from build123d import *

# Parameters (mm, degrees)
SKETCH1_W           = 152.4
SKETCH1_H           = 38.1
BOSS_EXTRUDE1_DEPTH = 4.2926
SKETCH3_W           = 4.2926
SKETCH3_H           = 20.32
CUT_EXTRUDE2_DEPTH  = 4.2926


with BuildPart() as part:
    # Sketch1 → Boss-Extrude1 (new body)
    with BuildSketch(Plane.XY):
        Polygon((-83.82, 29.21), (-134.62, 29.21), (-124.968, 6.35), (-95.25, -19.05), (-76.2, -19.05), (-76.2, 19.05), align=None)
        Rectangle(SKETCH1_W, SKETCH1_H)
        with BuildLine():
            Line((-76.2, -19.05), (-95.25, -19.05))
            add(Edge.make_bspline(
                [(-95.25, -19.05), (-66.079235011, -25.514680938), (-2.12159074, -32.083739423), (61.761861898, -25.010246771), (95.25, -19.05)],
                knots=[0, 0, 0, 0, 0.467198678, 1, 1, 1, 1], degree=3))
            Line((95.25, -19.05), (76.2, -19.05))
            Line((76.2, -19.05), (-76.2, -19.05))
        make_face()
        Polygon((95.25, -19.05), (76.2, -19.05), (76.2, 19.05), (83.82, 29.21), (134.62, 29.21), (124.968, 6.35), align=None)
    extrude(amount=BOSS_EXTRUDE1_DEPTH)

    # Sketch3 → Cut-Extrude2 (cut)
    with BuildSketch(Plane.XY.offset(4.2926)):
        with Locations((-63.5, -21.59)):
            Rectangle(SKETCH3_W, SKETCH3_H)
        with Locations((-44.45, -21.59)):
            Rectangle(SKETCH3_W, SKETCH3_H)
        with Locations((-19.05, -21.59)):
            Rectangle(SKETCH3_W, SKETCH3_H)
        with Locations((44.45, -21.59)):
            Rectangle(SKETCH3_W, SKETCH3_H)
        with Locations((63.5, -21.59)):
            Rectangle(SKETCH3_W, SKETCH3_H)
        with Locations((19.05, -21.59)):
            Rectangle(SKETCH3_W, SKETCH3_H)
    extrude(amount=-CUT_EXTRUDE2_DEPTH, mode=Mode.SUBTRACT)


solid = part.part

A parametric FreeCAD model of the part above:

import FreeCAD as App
import Part
import Sketcher
from FreeCAD import Vector
Q = App.Units.Quantity


def add_polygon(sketch, points):
    """Adds a closed chain of lines whose ends are joined by coincident constraints."""
    first, n = sketch.GeometryCount, len(points)
    for a, b in zip(points, points[1:] + points[:1]):
        sketch.addGeometry(Part.LineSegment(App.Vector(*a, 0), App.Vector(*b, 0)), False)
    for i in range(n):
        sketch.addConstraint(Sketcher.Constraint("Coincident", first + i, 2, first + (i + 1) % n, 1))

doc = App.newDocument("Part")
params = doc.addObject("Spreadsheet::Sheet", "Params")
for row, (alias, value) in enumerate([
    ("sketch1_width", "2 in"),
    ("sketch1_width2", "6 in"),
    ("sketch1_length", "0.5 in"),
    ("pad1_length", "0.169 in"),
    ("sketch2_height", "0.8 in"),
    ("sketch2_width", "0.169 in"),
    ("pocket1_length", "0.169 in"),
], start=1):
    params.set(f"A{row}", alias)
    params.set(f"B{row}", "=" + value)
    params.setAlias(f"B{row}", alias)

body = doc.addObject("PartDesign::Body", "Body")

# Sketch on XY plane
sketch1 = body.newObject("Sketcher::SketchObject", "Sketch")
sketch1.AttachmentSupport = (doc.getObject("XY_Plane"), [""])
sketch1.MapMode = "FlatFace"
sketch1.addGeometry([
    Part.LineSegment(Vector(-83.82, 29.21, 0), Vector(-134.62, 29.21, 0)),  # 0
    Part.LineSegment(Vector(-134.62, 29.21, 0), Vector(-124.968, 6.35, 0)),  # 1
    Part.LineSegment(Vector(-124.968, 6.35, 0), Vector(-95.25, -19.05, 0)),  # 2
    Part.BSplineCurve([Vector(-95.25, -19.05, 0), Vector(-66.079235, -25.514681, 0), Vector(-2.121591, -32.083739, 0), Vector(61.761862, -25.010247, 0), Vector(95.25, -19.05, 0)], [4, 1, 4], [0, 0.467198678, 1], False, 3, [1, 1, 1, 1, 1], False),  # 3
    Part.LineSegment(Vector(95.25, -19.05, 0), Vector(124.968, 6.35, 0)),  # 4
    Part.LineSegment(Vector(124.968, 6.35, 0), Vector(134.62, 29.21, 0)),  # 5
    Part.LineSegment(Vector(134.62, 29.21, 0), Vector(83.82, 29.21, 0)),  # 6
    Part.LineSegment(Vector(83.82, 29.21, 0), Vector(76.2, 19.05, 0)),  # 7
    Part.LineSegment(Vector(76.2, 19.05, 0), Vector(-76.2, 19.05, 0)),  # 8
    Part.LineSegment(Vector(-76.2, 19.05, 0), Vector(-83.82, 29.21, 0)),  # 9
], False)
sketch1.addConstraint([
    Sketcher.Constraint("Block", 3),
    Sketcher.Constraint("Coincident", 0, 2, 1, 1),
    Sketcher.Constraint("Coincident", 1, 2, 2, 1),
    Sketcher.Constraint("Coincident", 2, 2, 3, 1),
    Sketcher.Constraint("Coincident", 3, 2, 4, 1),
    Sketcher.Constraint("Coincident", 4, 2, 5, 1),
    Sketcher.Constraint("Coincident", 5, 2, 6, 1),
    Sketcher.Constraint("Coincident", 6, 2, 7, 1),
    Sketcher.Constraint("Coincident", 7, 2, 8, 1),
    Sketcher.Constraint("Coincident", 8, 2, 9, 1),
    Sketcher.Constraint("Coincident", 9, 2, 0, 1),
    Sketcher.Constraint("Horizontal", 0),
    Sketcher.Constraint("Horizontal", 6),
    Sketcher.Constraint("Horizontal", 8),
    Sketcher.Constraint("Symmetric", 1, 2, 4, 2, -2),
    Sketcher.Constraint("Symmetric", 0, 2, 5, 2, -2),
    Sketcher.Constraint("Equal", 0, 6),
    Sketcher.Constraint("Equal", 7, 9),
    Sketcher.Constraint("DistanceX", 0, 2, 0, 1, Q("2 in")),
    Sketcher.Constraint("DistanceX", 8, 2, 8, 1, Q("6 in")),
    Sketcher.Constraint("DistanceY", 2, 2, 1, 2, Q("1 in")),
    Sketcher.Constraint("Distance", 7, Q("0.5 in")),
    Sketcher.Constraint("DistanceX", 0, 2, -1, 1, Q("5.3 in")),
    Sketcher.Constraint("DistanceY", 1, 2, 0, 2, Q("0.9 in")),
    Sketcher.Constraint("DistanceX", 1, 2, -1, 1, Q("4.92 in")),
])
sketch1.setExpression("Constraints[18]", "Params.sketch1_width")
sketch1.setExpression("Constraints[19]", "Params.sketch1_width2")
sketch1.setExpression("Constraints[21]", "Params.sketch1_length")
pad1 = body.newObject("PartDesign::Pad", "Pad")
pad1.Profile = sketch1
pad1.setExpression("Length", "Params.pad1_length")

# Sketch on XY plane
sketch2 = body.newObject("Sketcher::SketchObject", "Sketch001")
sketch2.AttachmentSupport = (doc.getObject("XY_Plane"), [""])
sketch2.MapMode = "FlatFace"
sketch2.AttachmentOffset = App.Placement(Vector(0, 0, 0.169 * 25.4), App.Rotation())
add_polygon(sketch2, [(-65.6, -11.4), (-65.6, -31.8), (-61.4, -31.8), (-61.4, -11.4)])  # lines 0-3
add_polygon(sketch2, [(-46.6, -11.4), (-46.6, -31.8), (-42.3, -31.8), (-42.3, -11.4)])  # lines 4-7
add_polygon(sketch2, [(-21.2, -11.4), (-21.2, -31.8), (-16.9, -31.8), (-16.9, -11.4)])  # lines 8-11
add_polygon(sketch2, [(42.3, -11.4), (42.3, -31.8), (46.6, -31.8), (46.6, -11.4)])  # lines 12-15
add_polygon(sketch2, [(61.4, -11.4), (61.4, -31.8), (65.6, -31.8), (65.6, -11.4)])  # lines 16-19
add_polygon(sketch2, [(16.9, -11.4), (16.9, -31.8), (21.2, -31.8), (21.2, -11.4)])  # lines 20-23
sketch2.addConstraint([
    Sketcher.Constraint("Vertical", 0),
    Sketcher.Constraint("Horizontal", 1),
    Sketcher.Constraint("Vertical", 2),
    Sketcher.Constraint("Horizontal", 3),
    Sketcher.Constraint("Vertical", 4),
    Sketcher.Constraint("Horizontal", 5),
    Sketcher.Constraint("Vertical", 6),
    Sketcher.Constraint("Horizontal", 7),
    Sketcher.Constraint("Vertical", 8),
    Sketcher.Constraint("Horizontal", 9),
    Sketcher.Constraint("Vertical", 10),
    Sketcher.Constraint("Horizontal", 11),
    Sketcher.Constraint("Vertical", 12),
    Sketcher.Constraint("Horizontal", 13),
    Sketcher.Constraint("Vertical", 14),
    Sketcher.Constraint("Horizontal", 15),
    Sketcher.Constraint("Vertical", 16),
    Sketcher.Constraint("Horizontal", 17),
    Sketcher.Constraint("Vertical", 18),
    Sketcher.Constraint("Horizontal", 19),
    Sketcher.Constraint("Vertical", 20),
    Sketcher.Constraint("Horizontal", 21),
    Sketcher.Constraint("Vertical", 22),
    Sketcher.Constraint("Horizontal", 23),
    Sketcher.Constraint("Symmetric", 5, 2, 12, 2, -2),
    Sketcher.Constraint("Symmetric", 7, 2, 14, 2, -2),
    Sketcher.Constraint("Symmetric", 1, 2, 16, 2, -2),
    Sketcher.Constraint("Symmetric", 3, 2, 18, 2, -2),
    Sketcher.Constraint("Symmetric", 9, 2, 20, 2, -2),
    Sketcher.Constraint("Symmetric", 11, 2, 22, 2, -2),
    Sketcher.Constraint("Horizontal", 1, 2, 4, 2),
    Sketcher.Constraint("Horizontal", 3, 2, 6, 2),
    Sketcher.Constraint("Horizontal", 5, 2, 8, 2),
    Sketcher.Constraint("Horizontal", 7, 2, 10, 2),
    Sketcher.Constraint("Equal", 3, 5),
    Sketcher.Constraint("Equal", 7, 9),
    Sketcher.Constraint("DistanceY", 0, 2, 0, 1, Q("0.8 in")),
    Sketcher.Constraint("DistanceX", 4, 2, 8, 2, Q("1 in")),
    Sketcher.Constraint("DistanceX", 8, 2, 12, 2, Q("2.5 in")),
    Sketcher.Constraint("DistanceX", 1, 1, 1, 2, Q("0.169 in")),
    Sketcher.Constraint("DistanceY", 0, 2, -1, 1, Q("1.25 in")),
    Sketcher.Constraint("DistanceX", 0, 2, 4, 2, Q("0.75 in")),
])
sketch2.setExpression("Constraints[60]", "Params.sketch2_height")
sketch2.setExpression("Constraints[63]", "Params.sketch2_width")
pocket1 = body.newObject("PartDesign::Pocket", "Pocket")
pocket1.Profile = sketch2
pocket1.setExpression("Length", "Params.pocket1_length")

doc.recompute()
